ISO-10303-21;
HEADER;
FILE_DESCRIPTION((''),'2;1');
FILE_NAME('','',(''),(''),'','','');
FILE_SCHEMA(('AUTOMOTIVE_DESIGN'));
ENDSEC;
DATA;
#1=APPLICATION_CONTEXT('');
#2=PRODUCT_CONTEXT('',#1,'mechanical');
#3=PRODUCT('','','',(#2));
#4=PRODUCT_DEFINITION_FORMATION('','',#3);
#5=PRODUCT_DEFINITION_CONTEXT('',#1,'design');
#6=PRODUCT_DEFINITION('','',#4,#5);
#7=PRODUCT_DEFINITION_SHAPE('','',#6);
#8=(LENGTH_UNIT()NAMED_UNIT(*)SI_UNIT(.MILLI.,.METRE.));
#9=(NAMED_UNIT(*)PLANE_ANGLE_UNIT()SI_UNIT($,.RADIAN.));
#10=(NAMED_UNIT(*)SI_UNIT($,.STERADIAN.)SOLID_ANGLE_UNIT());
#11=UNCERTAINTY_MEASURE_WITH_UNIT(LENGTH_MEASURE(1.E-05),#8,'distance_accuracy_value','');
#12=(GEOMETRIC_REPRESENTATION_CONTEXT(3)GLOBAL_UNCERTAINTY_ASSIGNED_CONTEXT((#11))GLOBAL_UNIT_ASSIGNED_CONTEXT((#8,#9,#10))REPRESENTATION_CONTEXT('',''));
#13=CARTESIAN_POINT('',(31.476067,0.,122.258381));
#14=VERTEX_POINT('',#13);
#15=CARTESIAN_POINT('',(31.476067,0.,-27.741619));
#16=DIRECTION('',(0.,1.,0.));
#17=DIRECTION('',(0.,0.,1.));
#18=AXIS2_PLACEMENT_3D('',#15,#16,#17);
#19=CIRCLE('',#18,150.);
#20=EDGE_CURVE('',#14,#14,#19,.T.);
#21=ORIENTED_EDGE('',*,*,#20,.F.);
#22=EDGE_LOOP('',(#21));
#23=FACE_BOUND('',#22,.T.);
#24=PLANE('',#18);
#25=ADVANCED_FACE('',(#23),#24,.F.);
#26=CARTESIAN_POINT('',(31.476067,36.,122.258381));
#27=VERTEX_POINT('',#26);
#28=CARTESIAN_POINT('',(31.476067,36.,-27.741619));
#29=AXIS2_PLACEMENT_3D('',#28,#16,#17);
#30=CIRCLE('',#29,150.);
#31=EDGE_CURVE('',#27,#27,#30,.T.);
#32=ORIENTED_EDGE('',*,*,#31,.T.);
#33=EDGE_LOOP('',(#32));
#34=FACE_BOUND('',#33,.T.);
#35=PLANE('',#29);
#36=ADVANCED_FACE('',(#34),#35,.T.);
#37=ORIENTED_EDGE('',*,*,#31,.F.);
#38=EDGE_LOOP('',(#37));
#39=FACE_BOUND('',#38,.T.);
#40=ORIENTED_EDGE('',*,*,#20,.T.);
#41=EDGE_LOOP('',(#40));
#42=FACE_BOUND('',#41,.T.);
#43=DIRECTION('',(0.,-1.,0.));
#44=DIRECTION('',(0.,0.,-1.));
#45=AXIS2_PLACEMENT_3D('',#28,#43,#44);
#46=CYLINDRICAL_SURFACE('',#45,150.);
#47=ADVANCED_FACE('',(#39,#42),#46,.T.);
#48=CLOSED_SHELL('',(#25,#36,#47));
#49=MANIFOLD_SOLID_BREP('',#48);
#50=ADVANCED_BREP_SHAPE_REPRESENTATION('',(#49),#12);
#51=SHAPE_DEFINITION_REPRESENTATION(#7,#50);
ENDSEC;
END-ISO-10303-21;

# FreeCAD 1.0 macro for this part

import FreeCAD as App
import Part
import Sketcher

V = App.Vector

doc = App.newDocument("Part")
params = doc.addObject("Spreadsheet::Sheet", "Params")
for row, (alias, value) in enumerate([
    ("sketch1_diameter", "300 mm"),
    ("pad1_length", "36 mm"),
], start=1):
    params.set(f"A{row}", alias)
    params.set(f"B{row}", "=" + value)
    params.setAlias(f"B{row}", alias)

body = doc.addObject("PartDesign::Body", "Body")

# Sketch on XZ plane
sketch1 = body.newObject("Sketcher::SketchObject", "Sketch")
sketch1.AttachmentSupport = (doc.getObject("XZ_Plane"), [""])
sketch1.MapMode = "FlatFace"
sketch1.addGeometry(Part.Circle(V(31.476067, -27.741619, 0), V(0, 0, 1), 150), False)
sketch1.addConstraint([
    Sketcher.Constraint("Diameter", 0, 300.0),
    Sketcher.Constraint("DistanceY", 0, 3, -1, 1, 27.741619),
    Sketcher.Constraint("DistanceX", -1, 1, 0, 3, 31.476067),
])
sketch1.setExpression("Constraints[0]", "Params.sketch1_diameter")
pad1 = body.newObject("PartDesign::Pad", "Pad")
pad1.Profile = sketch1
pad1.setExpression("Length", "Params.pad1_length")
pad1.Reversed = True

doc.recompute()
